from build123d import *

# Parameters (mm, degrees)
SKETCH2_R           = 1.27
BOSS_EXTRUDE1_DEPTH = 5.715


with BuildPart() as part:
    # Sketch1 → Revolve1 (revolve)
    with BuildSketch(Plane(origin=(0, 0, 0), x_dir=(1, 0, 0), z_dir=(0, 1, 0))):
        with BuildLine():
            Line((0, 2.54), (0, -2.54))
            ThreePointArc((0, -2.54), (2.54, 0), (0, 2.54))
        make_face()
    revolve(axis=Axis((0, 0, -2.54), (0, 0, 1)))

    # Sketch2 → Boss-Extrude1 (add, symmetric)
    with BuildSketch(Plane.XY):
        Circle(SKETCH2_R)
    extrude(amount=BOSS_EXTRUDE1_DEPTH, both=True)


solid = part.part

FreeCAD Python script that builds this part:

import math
import FreeCAD as App
import Part
import Sketcher
Q = App.Units.Quantity

doc = App.newDocument("Part")
body = doc.addObject("PartDesign::Body", "Body")

# Sketch on XZ plane
sketch1 = body.newObject("Sketcher::SketchObject", "Sketch")
sketch1.AttachmentSupport = (doc.getObject("XZ_Plane"), [""])
sketch1.MapMode = "FlatFace"
sketch1.addGeometry([
    Part.LineSegment(App.Vector(0, -2.5, 0), App.Vector(0, 2.5, 0)),
    Part.ArcOfCircle(Part.Circle(App.Vector(0, 0, 0), App.Vector(0, 0, 1), 2.5), math.radians(-90), math.radians(90)),
], False)
sketch1.addConstraint([
    Sketcher.Constraint("Coincident", 0, 1, 1, 1),
    Sketcher.Constraint("Coincident", 1, 2, 0, 2),
    Sketcher.Constraint("Vertical", 0),
    Sketcher.Constraint("Coincident", 1, 3, -1, 1),
    Sketcher.Constraint("PointOnObject", 0, 1, -2),
    Sketcher.Constraint("Radius", 1, Q("0.1 in")),
])
revolution = body.newObject("PartDesign::Revolution", "Revolution")
revolution.Profile = sketch1
revolution.ReferenceAxis = (sketch1, ["V_Axis"])
revolution.Angle = 360

# Sketch on XY plane
sketch2 = body.newObject("Sketcher::SketchObject", "Sketch001")
sketch2.AttachmentSupport = (doc.getObject("XY_Plane"), [""])
sketch2.MapMode = "FlatFace"
sketch2.addGeometry(Part.Circle(App.Vector(0, 0, 0), App.Vector(0, 0, 1), 1.3), False)
sketch2.addConstraint([
    Sketcher.Constraint("Coincident", 0, 3, -1, 1),
    Sketcher.Constraint("Diameter", 0, Q("0.1 in")),
])
pad1 = body.newObject("PartDesign::Pad", "Pad")
pad1.Profile = sketch2
pad1.Length = Q("0.45 in")
pad1.Midplane = True

doc.recompute()
